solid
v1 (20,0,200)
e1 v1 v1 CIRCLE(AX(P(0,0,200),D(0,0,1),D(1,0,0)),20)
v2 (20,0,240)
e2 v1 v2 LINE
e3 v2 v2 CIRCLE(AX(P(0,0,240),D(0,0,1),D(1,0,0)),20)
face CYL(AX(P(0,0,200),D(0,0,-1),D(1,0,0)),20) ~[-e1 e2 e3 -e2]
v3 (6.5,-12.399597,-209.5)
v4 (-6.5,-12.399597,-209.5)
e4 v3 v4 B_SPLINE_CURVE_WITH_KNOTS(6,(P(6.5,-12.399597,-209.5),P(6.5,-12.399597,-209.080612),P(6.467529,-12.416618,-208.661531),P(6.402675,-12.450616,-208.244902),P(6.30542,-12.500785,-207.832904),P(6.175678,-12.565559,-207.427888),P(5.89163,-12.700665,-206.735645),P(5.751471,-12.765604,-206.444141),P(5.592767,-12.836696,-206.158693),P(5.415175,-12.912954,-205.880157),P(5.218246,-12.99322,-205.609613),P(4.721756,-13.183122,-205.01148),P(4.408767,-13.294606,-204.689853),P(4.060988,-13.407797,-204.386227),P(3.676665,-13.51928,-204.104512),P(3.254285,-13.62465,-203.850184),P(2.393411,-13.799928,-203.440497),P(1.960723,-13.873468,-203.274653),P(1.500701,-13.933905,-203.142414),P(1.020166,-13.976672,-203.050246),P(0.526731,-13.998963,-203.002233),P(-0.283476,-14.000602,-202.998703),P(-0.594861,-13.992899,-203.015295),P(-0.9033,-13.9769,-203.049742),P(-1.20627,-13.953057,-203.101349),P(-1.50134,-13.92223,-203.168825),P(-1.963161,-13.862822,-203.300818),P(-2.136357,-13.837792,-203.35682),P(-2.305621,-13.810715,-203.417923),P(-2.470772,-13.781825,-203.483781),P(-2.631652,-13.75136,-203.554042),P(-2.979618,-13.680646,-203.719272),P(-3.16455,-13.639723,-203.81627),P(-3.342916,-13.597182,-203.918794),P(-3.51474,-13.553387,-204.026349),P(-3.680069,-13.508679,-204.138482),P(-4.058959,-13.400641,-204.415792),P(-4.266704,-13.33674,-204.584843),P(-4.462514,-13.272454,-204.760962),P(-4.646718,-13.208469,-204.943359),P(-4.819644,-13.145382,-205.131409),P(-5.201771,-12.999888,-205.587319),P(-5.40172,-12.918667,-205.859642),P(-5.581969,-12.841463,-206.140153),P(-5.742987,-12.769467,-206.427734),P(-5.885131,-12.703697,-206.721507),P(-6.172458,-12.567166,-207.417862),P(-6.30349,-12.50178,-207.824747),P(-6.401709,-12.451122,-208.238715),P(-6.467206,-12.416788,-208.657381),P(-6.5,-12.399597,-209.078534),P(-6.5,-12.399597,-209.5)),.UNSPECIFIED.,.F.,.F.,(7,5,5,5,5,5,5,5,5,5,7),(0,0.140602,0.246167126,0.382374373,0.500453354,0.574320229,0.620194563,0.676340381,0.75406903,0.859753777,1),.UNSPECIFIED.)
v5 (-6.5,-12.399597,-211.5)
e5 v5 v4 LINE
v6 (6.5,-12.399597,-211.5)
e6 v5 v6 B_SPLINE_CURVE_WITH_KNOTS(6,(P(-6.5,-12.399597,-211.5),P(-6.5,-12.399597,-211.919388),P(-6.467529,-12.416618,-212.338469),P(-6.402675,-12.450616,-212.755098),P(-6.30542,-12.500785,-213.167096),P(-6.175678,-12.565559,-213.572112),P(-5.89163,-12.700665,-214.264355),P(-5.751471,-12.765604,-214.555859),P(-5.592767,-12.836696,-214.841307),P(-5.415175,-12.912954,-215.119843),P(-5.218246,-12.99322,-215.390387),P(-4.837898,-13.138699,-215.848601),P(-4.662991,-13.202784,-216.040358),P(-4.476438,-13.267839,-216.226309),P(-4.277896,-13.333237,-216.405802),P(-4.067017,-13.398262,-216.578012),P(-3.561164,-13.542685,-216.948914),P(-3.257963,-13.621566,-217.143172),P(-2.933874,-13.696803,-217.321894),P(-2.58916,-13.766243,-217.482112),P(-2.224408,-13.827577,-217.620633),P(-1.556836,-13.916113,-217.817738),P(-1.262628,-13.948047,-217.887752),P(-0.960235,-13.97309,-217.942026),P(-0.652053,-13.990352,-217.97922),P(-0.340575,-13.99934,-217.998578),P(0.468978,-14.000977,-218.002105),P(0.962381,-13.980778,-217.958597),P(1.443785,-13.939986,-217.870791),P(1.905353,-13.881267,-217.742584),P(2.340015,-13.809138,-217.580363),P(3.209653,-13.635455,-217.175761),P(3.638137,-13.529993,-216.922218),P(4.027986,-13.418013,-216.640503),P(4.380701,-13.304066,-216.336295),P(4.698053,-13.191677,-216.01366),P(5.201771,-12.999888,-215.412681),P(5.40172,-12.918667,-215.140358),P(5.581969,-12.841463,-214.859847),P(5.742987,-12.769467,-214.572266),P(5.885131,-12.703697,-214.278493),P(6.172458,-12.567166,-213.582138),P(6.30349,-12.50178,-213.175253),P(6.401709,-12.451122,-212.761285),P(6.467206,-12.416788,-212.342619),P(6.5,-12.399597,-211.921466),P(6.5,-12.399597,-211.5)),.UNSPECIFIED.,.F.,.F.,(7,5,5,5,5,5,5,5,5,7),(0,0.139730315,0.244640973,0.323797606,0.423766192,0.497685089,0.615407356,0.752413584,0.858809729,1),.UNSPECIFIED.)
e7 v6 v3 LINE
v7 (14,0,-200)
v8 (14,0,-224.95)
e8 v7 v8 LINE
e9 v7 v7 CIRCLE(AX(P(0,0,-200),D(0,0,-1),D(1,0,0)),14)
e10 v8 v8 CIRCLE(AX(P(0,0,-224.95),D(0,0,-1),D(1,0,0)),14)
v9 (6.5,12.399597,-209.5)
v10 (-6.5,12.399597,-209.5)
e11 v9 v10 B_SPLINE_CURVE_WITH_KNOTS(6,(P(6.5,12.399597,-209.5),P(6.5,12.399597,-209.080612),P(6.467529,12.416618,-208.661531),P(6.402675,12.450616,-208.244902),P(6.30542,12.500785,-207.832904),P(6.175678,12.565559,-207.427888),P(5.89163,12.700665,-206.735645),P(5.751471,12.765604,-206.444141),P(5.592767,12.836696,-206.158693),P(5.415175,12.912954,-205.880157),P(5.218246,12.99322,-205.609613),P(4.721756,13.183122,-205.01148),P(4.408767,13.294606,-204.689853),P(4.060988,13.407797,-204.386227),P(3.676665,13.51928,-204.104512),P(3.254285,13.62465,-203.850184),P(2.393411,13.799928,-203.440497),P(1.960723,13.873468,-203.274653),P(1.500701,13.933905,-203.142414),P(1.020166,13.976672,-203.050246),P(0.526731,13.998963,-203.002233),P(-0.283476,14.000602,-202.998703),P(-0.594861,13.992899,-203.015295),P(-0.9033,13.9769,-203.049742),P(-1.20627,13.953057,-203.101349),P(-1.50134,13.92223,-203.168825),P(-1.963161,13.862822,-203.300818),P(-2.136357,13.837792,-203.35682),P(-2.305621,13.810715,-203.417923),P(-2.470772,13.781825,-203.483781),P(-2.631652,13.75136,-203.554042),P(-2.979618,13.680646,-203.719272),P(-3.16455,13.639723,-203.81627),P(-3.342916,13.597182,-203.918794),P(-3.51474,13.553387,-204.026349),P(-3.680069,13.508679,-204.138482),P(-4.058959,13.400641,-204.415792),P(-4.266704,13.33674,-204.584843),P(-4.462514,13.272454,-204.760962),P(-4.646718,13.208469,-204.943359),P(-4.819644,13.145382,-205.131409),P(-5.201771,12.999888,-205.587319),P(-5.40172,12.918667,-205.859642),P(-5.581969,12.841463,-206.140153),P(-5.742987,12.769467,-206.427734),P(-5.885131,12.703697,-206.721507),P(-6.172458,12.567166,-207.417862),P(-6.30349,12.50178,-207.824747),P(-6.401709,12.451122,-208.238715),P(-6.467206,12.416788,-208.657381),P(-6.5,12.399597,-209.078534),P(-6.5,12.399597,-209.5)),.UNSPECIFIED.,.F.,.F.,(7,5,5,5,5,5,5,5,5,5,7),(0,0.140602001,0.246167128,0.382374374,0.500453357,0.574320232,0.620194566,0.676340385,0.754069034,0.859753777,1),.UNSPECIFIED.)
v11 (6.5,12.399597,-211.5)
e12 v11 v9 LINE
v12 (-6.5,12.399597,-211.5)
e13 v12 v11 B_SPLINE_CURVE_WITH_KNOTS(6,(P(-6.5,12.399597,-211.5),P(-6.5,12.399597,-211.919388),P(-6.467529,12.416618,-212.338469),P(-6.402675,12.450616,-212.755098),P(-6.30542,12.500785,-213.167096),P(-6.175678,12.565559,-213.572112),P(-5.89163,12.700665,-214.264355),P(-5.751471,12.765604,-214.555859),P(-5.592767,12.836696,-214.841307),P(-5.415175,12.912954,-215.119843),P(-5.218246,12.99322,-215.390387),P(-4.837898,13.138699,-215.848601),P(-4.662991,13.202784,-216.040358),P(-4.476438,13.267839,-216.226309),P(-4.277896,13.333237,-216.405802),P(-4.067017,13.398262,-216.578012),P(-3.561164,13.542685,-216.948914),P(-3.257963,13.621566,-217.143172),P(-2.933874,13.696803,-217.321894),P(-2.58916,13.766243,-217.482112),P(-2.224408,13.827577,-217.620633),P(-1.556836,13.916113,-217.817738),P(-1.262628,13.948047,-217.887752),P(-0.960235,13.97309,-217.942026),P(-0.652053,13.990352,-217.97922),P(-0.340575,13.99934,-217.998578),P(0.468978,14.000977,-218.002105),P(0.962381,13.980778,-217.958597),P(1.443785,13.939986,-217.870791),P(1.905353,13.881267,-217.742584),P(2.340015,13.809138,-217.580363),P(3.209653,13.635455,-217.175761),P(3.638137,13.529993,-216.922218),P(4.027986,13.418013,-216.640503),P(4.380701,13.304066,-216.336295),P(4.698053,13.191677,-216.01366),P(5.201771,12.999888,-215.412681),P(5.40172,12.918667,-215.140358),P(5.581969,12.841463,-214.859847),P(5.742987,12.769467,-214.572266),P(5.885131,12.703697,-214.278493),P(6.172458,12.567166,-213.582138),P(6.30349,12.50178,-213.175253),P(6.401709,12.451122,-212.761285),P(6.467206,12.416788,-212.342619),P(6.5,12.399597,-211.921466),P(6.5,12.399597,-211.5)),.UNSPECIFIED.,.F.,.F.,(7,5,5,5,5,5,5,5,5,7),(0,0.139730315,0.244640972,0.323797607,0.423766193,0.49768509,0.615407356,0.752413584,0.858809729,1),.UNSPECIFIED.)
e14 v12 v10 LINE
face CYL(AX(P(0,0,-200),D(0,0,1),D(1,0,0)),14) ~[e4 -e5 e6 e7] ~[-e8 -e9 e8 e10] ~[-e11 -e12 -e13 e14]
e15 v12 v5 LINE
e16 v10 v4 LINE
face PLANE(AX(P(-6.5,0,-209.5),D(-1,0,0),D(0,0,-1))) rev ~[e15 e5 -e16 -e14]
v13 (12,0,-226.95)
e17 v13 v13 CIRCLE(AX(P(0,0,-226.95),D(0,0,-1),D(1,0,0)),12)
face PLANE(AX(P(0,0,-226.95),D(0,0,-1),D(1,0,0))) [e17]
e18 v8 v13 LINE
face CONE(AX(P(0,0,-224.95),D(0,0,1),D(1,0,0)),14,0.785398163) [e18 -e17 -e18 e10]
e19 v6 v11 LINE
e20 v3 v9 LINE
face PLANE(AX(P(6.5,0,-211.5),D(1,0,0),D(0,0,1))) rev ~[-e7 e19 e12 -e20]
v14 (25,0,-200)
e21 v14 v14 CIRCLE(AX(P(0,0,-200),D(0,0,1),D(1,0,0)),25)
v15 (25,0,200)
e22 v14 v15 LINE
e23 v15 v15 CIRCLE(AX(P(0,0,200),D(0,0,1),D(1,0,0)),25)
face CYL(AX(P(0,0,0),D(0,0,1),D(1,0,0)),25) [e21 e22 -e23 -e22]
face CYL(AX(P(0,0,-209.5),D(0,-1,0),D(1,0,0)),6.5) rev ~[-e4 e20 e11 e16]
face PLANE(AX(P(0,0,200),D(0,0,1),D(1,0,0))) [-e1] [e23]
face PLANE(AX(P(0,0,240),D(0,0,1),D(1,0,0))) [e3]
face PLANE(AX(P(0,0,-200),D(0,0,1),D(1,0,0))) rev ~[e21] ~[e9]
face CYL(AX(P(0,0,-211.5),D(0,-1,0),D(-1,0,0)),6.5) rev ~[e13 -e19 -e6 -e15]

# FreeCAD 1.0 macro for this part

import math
import FreeCAD as App
import Part
import Sketcher
from FreeCAD import Vector


def edges_at(feature, points):
    """Names of the edges that pass closest to the given points."""
    edges = feature.Shape.Edges
    near = lambda p: min(range(len(edges)), key=lambda i: edges[i].distToShape(Part.Vertex(*p))[0])
    return sorted({f"Edge{near(p) + 1}" for p in points})

doc = App.newDocument("Part")
params = doc.addObject("Spreadsheet::Sheet", "Params")
for row, (alias, value) in enumerate([
    ("sketch1_diameter", "50 mm"),
    ("pad1_length", "400 mm"),
    ("sketch2_diameter", "40 mm"),
    ("pad2_length", "40 mm"),
    ("sketch3_diameter", "28 mm"),
    ("pad3_length", "26.95 mm"),
    ("sketch4_radius", "6.5 mm"),
    ("sketch4_height", "2 mm"),
    ("pocket1_length", "50 mm"),
    ("chamfer_size", "2 mm"),
], start=1):
    params.set(f"A{row}", alias)
    params.set(f"B{row}", "=" + value)
    params.setAlias(f"B{row}", alias)

body = doc.addObject("PartDesign::Body", "Body")

# Sketch on XY plane
sketch1 = body.newObject("Sketcher::SketchObject", "Sketch")
sketch1.AttachmentSupport = (doc.getObject("XY_Plane"), [""])
sketch1.MapMode = "FlatFace"
sketch1.addGeometry(Part.Circle(Vector(0, 0, 0), Vector(0, 0, 1), 25), False)
sketch1.addConstraint(Sketcher.Constraint("Coincident", 0, 3, -1, 1))
sketch1.addConstraint(Sketcher.Constraint("Diameter", 0, 50.0))
sketch1.setExpression("Constraints[1]", "Params.sketch1_diameter")
pad1 = body.newObject("PartDesign::Pad", "Pad")
pad1.Profile = sketch1
pad1.setExpression("Length", "Params.pad1_length")
pad1.Midplane = True

# Sketch on XY plane
sketch2 = body.newObject("Sketcher::SketchObject", "Sketch001")
sketch2.AttachmentSupport = (doc.getObject("XY_Plane"), [""])
sketch2.MapMode = "FlatFace"
sketch2.AttachmentOffset = App.Placement(Vector(0, 0, 200), App.Rotation())
sketch2.addGeometry(Part.Circle(Vector(0, 0, 0), Vector(0, 0, 1), 20), False)
sketch2.addConstraint(Sketcher.Constraint("Coincident", 0, 3, -1, 1))
sketch2.addConstraint(Sketcher.Constraint("Diameter", 0, 40.0))
sketch2.setExpression("Constraints[1]", "Params.sketch2_diameter")
pad2 = body.newObject("PartDesign::Pad", "Pad001")
pad2.Profile = sketch2
pad2.setExpression("Length", "Params.pad2_length")

# Sketch on XY plane
sketch3 = body.newObject("Sketcher::SketchObject", "Sketch002")
sketch3.AttachmentSupport = (doc.getObject("XY_Plane"), [""])
sketch3.MapMode = "FlatFace"
sketch3.AttachmentOffset = App.Placement(Vector(0, 0, -200), App.Rotation())
sketch3.addGeometry(Part.Circle(Vector(0, 0, 0), Vector(0, 0, 1), 14), False)
sketch3.addConstraint(Sketcher.Constraint("Coincident", 0, 3, -1, 1))
sketch3.addConstraint(Sketcher.Constraint("Diameter", 0, 28.0))
sketch3.setExpression("Constraints[1]", "Params.sketch3_diameter")
pad3 = body.newObject("PartDesign::Pad", "Pad002")
pad3.Profile = sketch3
pad3.setExpression("Length", "Params.pad3_length")
pad3.Reversed = True

# Sketch on XZ plane
sketch4 = body.newObject("Sketcher::SketchObject", "Sketch003")
sketch4.AttachmentSupport = (doc.getObject("XZ_Plane"), [""])
sketch4.MapMode = "FlatFace"
sketch4.addGeometry(Part.ArcOfCircle(Part.Circle(Vector(0, -209.5, 0), Vector(0, 0, 1), 6.5), math.radians(0), math.radians(180)), False)
sketch4.addGeometry(Part.LineSegment(Vector(-6.5, -209.5, 0), Vector(-6.5, -211.5, 0)), False)
sketch4.addGeometry(Part.ArcOfCircle(Part.Circle(Vector(0, -211.5, 0), Vector(0, 0, 1), 6.5), math.radians(180), math.radians(360)), False)
sketch4.addGeometry(Part.LineSegment(Vector(6.5, -211.5, 0), Vector(6.5, -209.5, 0)), False)
sketch4.addConstraint(Sketcher.Constraint("Tangent", 0, 2, 1, 1))
sketch4.addConstraint(Sketcher.Constraint("Tangent", 1, 2, 2, 1))
sketch4.addConstraint(Sketcher.Constraint("Tangent", 2, 2, 3, 1))
sketch4.addConstraint(Sketcher.Constraint("Tangent", 3, 2, 0, 1))
sketch4.addConstraint(Sketcher.Constraint("Vertical", 1))
sketch4.addConstraint(Sketcher.Constraint("Vertical", 3))
sketch4.addConstraint(Sketcher.Constraint("PointOnObject", 0, 3, -2))
sketch4.addConstraint(Sketcher.Constraint("Radius", 0, 6.5))
sketch4.addConstraint(Sketcher.Constraint("DistanceY", 1, 2, 1, 1, 2.0))
sketch4.addConstraint(Sketcher.Constraint("DistanceY", 0, 3, -1, 1, 209.5))
sketch4.setExpression("Constraints[7]", "Params.sketch4_radius")
sketch4.setExpression("Constraints[8]", "Params.sketch4_height")
pocket1 = body.newObject("PartDesign::Pocket", "Pocket")
pocket1.Profile = sketch4
pocket1.setExpression("Length", "Params.pocket1_length")
pocket1.Midplane = True
doc.recompute()

chamfer = body.newObject("PartDesign::Chamfer", "Chamfer")
chamfer.Base = (pocket1, edges_at(pocket1, [(-14, 0, -226.95)]))
chamfer.setExpression("Size", "Params.chamfer_size")

doc.recompute()
